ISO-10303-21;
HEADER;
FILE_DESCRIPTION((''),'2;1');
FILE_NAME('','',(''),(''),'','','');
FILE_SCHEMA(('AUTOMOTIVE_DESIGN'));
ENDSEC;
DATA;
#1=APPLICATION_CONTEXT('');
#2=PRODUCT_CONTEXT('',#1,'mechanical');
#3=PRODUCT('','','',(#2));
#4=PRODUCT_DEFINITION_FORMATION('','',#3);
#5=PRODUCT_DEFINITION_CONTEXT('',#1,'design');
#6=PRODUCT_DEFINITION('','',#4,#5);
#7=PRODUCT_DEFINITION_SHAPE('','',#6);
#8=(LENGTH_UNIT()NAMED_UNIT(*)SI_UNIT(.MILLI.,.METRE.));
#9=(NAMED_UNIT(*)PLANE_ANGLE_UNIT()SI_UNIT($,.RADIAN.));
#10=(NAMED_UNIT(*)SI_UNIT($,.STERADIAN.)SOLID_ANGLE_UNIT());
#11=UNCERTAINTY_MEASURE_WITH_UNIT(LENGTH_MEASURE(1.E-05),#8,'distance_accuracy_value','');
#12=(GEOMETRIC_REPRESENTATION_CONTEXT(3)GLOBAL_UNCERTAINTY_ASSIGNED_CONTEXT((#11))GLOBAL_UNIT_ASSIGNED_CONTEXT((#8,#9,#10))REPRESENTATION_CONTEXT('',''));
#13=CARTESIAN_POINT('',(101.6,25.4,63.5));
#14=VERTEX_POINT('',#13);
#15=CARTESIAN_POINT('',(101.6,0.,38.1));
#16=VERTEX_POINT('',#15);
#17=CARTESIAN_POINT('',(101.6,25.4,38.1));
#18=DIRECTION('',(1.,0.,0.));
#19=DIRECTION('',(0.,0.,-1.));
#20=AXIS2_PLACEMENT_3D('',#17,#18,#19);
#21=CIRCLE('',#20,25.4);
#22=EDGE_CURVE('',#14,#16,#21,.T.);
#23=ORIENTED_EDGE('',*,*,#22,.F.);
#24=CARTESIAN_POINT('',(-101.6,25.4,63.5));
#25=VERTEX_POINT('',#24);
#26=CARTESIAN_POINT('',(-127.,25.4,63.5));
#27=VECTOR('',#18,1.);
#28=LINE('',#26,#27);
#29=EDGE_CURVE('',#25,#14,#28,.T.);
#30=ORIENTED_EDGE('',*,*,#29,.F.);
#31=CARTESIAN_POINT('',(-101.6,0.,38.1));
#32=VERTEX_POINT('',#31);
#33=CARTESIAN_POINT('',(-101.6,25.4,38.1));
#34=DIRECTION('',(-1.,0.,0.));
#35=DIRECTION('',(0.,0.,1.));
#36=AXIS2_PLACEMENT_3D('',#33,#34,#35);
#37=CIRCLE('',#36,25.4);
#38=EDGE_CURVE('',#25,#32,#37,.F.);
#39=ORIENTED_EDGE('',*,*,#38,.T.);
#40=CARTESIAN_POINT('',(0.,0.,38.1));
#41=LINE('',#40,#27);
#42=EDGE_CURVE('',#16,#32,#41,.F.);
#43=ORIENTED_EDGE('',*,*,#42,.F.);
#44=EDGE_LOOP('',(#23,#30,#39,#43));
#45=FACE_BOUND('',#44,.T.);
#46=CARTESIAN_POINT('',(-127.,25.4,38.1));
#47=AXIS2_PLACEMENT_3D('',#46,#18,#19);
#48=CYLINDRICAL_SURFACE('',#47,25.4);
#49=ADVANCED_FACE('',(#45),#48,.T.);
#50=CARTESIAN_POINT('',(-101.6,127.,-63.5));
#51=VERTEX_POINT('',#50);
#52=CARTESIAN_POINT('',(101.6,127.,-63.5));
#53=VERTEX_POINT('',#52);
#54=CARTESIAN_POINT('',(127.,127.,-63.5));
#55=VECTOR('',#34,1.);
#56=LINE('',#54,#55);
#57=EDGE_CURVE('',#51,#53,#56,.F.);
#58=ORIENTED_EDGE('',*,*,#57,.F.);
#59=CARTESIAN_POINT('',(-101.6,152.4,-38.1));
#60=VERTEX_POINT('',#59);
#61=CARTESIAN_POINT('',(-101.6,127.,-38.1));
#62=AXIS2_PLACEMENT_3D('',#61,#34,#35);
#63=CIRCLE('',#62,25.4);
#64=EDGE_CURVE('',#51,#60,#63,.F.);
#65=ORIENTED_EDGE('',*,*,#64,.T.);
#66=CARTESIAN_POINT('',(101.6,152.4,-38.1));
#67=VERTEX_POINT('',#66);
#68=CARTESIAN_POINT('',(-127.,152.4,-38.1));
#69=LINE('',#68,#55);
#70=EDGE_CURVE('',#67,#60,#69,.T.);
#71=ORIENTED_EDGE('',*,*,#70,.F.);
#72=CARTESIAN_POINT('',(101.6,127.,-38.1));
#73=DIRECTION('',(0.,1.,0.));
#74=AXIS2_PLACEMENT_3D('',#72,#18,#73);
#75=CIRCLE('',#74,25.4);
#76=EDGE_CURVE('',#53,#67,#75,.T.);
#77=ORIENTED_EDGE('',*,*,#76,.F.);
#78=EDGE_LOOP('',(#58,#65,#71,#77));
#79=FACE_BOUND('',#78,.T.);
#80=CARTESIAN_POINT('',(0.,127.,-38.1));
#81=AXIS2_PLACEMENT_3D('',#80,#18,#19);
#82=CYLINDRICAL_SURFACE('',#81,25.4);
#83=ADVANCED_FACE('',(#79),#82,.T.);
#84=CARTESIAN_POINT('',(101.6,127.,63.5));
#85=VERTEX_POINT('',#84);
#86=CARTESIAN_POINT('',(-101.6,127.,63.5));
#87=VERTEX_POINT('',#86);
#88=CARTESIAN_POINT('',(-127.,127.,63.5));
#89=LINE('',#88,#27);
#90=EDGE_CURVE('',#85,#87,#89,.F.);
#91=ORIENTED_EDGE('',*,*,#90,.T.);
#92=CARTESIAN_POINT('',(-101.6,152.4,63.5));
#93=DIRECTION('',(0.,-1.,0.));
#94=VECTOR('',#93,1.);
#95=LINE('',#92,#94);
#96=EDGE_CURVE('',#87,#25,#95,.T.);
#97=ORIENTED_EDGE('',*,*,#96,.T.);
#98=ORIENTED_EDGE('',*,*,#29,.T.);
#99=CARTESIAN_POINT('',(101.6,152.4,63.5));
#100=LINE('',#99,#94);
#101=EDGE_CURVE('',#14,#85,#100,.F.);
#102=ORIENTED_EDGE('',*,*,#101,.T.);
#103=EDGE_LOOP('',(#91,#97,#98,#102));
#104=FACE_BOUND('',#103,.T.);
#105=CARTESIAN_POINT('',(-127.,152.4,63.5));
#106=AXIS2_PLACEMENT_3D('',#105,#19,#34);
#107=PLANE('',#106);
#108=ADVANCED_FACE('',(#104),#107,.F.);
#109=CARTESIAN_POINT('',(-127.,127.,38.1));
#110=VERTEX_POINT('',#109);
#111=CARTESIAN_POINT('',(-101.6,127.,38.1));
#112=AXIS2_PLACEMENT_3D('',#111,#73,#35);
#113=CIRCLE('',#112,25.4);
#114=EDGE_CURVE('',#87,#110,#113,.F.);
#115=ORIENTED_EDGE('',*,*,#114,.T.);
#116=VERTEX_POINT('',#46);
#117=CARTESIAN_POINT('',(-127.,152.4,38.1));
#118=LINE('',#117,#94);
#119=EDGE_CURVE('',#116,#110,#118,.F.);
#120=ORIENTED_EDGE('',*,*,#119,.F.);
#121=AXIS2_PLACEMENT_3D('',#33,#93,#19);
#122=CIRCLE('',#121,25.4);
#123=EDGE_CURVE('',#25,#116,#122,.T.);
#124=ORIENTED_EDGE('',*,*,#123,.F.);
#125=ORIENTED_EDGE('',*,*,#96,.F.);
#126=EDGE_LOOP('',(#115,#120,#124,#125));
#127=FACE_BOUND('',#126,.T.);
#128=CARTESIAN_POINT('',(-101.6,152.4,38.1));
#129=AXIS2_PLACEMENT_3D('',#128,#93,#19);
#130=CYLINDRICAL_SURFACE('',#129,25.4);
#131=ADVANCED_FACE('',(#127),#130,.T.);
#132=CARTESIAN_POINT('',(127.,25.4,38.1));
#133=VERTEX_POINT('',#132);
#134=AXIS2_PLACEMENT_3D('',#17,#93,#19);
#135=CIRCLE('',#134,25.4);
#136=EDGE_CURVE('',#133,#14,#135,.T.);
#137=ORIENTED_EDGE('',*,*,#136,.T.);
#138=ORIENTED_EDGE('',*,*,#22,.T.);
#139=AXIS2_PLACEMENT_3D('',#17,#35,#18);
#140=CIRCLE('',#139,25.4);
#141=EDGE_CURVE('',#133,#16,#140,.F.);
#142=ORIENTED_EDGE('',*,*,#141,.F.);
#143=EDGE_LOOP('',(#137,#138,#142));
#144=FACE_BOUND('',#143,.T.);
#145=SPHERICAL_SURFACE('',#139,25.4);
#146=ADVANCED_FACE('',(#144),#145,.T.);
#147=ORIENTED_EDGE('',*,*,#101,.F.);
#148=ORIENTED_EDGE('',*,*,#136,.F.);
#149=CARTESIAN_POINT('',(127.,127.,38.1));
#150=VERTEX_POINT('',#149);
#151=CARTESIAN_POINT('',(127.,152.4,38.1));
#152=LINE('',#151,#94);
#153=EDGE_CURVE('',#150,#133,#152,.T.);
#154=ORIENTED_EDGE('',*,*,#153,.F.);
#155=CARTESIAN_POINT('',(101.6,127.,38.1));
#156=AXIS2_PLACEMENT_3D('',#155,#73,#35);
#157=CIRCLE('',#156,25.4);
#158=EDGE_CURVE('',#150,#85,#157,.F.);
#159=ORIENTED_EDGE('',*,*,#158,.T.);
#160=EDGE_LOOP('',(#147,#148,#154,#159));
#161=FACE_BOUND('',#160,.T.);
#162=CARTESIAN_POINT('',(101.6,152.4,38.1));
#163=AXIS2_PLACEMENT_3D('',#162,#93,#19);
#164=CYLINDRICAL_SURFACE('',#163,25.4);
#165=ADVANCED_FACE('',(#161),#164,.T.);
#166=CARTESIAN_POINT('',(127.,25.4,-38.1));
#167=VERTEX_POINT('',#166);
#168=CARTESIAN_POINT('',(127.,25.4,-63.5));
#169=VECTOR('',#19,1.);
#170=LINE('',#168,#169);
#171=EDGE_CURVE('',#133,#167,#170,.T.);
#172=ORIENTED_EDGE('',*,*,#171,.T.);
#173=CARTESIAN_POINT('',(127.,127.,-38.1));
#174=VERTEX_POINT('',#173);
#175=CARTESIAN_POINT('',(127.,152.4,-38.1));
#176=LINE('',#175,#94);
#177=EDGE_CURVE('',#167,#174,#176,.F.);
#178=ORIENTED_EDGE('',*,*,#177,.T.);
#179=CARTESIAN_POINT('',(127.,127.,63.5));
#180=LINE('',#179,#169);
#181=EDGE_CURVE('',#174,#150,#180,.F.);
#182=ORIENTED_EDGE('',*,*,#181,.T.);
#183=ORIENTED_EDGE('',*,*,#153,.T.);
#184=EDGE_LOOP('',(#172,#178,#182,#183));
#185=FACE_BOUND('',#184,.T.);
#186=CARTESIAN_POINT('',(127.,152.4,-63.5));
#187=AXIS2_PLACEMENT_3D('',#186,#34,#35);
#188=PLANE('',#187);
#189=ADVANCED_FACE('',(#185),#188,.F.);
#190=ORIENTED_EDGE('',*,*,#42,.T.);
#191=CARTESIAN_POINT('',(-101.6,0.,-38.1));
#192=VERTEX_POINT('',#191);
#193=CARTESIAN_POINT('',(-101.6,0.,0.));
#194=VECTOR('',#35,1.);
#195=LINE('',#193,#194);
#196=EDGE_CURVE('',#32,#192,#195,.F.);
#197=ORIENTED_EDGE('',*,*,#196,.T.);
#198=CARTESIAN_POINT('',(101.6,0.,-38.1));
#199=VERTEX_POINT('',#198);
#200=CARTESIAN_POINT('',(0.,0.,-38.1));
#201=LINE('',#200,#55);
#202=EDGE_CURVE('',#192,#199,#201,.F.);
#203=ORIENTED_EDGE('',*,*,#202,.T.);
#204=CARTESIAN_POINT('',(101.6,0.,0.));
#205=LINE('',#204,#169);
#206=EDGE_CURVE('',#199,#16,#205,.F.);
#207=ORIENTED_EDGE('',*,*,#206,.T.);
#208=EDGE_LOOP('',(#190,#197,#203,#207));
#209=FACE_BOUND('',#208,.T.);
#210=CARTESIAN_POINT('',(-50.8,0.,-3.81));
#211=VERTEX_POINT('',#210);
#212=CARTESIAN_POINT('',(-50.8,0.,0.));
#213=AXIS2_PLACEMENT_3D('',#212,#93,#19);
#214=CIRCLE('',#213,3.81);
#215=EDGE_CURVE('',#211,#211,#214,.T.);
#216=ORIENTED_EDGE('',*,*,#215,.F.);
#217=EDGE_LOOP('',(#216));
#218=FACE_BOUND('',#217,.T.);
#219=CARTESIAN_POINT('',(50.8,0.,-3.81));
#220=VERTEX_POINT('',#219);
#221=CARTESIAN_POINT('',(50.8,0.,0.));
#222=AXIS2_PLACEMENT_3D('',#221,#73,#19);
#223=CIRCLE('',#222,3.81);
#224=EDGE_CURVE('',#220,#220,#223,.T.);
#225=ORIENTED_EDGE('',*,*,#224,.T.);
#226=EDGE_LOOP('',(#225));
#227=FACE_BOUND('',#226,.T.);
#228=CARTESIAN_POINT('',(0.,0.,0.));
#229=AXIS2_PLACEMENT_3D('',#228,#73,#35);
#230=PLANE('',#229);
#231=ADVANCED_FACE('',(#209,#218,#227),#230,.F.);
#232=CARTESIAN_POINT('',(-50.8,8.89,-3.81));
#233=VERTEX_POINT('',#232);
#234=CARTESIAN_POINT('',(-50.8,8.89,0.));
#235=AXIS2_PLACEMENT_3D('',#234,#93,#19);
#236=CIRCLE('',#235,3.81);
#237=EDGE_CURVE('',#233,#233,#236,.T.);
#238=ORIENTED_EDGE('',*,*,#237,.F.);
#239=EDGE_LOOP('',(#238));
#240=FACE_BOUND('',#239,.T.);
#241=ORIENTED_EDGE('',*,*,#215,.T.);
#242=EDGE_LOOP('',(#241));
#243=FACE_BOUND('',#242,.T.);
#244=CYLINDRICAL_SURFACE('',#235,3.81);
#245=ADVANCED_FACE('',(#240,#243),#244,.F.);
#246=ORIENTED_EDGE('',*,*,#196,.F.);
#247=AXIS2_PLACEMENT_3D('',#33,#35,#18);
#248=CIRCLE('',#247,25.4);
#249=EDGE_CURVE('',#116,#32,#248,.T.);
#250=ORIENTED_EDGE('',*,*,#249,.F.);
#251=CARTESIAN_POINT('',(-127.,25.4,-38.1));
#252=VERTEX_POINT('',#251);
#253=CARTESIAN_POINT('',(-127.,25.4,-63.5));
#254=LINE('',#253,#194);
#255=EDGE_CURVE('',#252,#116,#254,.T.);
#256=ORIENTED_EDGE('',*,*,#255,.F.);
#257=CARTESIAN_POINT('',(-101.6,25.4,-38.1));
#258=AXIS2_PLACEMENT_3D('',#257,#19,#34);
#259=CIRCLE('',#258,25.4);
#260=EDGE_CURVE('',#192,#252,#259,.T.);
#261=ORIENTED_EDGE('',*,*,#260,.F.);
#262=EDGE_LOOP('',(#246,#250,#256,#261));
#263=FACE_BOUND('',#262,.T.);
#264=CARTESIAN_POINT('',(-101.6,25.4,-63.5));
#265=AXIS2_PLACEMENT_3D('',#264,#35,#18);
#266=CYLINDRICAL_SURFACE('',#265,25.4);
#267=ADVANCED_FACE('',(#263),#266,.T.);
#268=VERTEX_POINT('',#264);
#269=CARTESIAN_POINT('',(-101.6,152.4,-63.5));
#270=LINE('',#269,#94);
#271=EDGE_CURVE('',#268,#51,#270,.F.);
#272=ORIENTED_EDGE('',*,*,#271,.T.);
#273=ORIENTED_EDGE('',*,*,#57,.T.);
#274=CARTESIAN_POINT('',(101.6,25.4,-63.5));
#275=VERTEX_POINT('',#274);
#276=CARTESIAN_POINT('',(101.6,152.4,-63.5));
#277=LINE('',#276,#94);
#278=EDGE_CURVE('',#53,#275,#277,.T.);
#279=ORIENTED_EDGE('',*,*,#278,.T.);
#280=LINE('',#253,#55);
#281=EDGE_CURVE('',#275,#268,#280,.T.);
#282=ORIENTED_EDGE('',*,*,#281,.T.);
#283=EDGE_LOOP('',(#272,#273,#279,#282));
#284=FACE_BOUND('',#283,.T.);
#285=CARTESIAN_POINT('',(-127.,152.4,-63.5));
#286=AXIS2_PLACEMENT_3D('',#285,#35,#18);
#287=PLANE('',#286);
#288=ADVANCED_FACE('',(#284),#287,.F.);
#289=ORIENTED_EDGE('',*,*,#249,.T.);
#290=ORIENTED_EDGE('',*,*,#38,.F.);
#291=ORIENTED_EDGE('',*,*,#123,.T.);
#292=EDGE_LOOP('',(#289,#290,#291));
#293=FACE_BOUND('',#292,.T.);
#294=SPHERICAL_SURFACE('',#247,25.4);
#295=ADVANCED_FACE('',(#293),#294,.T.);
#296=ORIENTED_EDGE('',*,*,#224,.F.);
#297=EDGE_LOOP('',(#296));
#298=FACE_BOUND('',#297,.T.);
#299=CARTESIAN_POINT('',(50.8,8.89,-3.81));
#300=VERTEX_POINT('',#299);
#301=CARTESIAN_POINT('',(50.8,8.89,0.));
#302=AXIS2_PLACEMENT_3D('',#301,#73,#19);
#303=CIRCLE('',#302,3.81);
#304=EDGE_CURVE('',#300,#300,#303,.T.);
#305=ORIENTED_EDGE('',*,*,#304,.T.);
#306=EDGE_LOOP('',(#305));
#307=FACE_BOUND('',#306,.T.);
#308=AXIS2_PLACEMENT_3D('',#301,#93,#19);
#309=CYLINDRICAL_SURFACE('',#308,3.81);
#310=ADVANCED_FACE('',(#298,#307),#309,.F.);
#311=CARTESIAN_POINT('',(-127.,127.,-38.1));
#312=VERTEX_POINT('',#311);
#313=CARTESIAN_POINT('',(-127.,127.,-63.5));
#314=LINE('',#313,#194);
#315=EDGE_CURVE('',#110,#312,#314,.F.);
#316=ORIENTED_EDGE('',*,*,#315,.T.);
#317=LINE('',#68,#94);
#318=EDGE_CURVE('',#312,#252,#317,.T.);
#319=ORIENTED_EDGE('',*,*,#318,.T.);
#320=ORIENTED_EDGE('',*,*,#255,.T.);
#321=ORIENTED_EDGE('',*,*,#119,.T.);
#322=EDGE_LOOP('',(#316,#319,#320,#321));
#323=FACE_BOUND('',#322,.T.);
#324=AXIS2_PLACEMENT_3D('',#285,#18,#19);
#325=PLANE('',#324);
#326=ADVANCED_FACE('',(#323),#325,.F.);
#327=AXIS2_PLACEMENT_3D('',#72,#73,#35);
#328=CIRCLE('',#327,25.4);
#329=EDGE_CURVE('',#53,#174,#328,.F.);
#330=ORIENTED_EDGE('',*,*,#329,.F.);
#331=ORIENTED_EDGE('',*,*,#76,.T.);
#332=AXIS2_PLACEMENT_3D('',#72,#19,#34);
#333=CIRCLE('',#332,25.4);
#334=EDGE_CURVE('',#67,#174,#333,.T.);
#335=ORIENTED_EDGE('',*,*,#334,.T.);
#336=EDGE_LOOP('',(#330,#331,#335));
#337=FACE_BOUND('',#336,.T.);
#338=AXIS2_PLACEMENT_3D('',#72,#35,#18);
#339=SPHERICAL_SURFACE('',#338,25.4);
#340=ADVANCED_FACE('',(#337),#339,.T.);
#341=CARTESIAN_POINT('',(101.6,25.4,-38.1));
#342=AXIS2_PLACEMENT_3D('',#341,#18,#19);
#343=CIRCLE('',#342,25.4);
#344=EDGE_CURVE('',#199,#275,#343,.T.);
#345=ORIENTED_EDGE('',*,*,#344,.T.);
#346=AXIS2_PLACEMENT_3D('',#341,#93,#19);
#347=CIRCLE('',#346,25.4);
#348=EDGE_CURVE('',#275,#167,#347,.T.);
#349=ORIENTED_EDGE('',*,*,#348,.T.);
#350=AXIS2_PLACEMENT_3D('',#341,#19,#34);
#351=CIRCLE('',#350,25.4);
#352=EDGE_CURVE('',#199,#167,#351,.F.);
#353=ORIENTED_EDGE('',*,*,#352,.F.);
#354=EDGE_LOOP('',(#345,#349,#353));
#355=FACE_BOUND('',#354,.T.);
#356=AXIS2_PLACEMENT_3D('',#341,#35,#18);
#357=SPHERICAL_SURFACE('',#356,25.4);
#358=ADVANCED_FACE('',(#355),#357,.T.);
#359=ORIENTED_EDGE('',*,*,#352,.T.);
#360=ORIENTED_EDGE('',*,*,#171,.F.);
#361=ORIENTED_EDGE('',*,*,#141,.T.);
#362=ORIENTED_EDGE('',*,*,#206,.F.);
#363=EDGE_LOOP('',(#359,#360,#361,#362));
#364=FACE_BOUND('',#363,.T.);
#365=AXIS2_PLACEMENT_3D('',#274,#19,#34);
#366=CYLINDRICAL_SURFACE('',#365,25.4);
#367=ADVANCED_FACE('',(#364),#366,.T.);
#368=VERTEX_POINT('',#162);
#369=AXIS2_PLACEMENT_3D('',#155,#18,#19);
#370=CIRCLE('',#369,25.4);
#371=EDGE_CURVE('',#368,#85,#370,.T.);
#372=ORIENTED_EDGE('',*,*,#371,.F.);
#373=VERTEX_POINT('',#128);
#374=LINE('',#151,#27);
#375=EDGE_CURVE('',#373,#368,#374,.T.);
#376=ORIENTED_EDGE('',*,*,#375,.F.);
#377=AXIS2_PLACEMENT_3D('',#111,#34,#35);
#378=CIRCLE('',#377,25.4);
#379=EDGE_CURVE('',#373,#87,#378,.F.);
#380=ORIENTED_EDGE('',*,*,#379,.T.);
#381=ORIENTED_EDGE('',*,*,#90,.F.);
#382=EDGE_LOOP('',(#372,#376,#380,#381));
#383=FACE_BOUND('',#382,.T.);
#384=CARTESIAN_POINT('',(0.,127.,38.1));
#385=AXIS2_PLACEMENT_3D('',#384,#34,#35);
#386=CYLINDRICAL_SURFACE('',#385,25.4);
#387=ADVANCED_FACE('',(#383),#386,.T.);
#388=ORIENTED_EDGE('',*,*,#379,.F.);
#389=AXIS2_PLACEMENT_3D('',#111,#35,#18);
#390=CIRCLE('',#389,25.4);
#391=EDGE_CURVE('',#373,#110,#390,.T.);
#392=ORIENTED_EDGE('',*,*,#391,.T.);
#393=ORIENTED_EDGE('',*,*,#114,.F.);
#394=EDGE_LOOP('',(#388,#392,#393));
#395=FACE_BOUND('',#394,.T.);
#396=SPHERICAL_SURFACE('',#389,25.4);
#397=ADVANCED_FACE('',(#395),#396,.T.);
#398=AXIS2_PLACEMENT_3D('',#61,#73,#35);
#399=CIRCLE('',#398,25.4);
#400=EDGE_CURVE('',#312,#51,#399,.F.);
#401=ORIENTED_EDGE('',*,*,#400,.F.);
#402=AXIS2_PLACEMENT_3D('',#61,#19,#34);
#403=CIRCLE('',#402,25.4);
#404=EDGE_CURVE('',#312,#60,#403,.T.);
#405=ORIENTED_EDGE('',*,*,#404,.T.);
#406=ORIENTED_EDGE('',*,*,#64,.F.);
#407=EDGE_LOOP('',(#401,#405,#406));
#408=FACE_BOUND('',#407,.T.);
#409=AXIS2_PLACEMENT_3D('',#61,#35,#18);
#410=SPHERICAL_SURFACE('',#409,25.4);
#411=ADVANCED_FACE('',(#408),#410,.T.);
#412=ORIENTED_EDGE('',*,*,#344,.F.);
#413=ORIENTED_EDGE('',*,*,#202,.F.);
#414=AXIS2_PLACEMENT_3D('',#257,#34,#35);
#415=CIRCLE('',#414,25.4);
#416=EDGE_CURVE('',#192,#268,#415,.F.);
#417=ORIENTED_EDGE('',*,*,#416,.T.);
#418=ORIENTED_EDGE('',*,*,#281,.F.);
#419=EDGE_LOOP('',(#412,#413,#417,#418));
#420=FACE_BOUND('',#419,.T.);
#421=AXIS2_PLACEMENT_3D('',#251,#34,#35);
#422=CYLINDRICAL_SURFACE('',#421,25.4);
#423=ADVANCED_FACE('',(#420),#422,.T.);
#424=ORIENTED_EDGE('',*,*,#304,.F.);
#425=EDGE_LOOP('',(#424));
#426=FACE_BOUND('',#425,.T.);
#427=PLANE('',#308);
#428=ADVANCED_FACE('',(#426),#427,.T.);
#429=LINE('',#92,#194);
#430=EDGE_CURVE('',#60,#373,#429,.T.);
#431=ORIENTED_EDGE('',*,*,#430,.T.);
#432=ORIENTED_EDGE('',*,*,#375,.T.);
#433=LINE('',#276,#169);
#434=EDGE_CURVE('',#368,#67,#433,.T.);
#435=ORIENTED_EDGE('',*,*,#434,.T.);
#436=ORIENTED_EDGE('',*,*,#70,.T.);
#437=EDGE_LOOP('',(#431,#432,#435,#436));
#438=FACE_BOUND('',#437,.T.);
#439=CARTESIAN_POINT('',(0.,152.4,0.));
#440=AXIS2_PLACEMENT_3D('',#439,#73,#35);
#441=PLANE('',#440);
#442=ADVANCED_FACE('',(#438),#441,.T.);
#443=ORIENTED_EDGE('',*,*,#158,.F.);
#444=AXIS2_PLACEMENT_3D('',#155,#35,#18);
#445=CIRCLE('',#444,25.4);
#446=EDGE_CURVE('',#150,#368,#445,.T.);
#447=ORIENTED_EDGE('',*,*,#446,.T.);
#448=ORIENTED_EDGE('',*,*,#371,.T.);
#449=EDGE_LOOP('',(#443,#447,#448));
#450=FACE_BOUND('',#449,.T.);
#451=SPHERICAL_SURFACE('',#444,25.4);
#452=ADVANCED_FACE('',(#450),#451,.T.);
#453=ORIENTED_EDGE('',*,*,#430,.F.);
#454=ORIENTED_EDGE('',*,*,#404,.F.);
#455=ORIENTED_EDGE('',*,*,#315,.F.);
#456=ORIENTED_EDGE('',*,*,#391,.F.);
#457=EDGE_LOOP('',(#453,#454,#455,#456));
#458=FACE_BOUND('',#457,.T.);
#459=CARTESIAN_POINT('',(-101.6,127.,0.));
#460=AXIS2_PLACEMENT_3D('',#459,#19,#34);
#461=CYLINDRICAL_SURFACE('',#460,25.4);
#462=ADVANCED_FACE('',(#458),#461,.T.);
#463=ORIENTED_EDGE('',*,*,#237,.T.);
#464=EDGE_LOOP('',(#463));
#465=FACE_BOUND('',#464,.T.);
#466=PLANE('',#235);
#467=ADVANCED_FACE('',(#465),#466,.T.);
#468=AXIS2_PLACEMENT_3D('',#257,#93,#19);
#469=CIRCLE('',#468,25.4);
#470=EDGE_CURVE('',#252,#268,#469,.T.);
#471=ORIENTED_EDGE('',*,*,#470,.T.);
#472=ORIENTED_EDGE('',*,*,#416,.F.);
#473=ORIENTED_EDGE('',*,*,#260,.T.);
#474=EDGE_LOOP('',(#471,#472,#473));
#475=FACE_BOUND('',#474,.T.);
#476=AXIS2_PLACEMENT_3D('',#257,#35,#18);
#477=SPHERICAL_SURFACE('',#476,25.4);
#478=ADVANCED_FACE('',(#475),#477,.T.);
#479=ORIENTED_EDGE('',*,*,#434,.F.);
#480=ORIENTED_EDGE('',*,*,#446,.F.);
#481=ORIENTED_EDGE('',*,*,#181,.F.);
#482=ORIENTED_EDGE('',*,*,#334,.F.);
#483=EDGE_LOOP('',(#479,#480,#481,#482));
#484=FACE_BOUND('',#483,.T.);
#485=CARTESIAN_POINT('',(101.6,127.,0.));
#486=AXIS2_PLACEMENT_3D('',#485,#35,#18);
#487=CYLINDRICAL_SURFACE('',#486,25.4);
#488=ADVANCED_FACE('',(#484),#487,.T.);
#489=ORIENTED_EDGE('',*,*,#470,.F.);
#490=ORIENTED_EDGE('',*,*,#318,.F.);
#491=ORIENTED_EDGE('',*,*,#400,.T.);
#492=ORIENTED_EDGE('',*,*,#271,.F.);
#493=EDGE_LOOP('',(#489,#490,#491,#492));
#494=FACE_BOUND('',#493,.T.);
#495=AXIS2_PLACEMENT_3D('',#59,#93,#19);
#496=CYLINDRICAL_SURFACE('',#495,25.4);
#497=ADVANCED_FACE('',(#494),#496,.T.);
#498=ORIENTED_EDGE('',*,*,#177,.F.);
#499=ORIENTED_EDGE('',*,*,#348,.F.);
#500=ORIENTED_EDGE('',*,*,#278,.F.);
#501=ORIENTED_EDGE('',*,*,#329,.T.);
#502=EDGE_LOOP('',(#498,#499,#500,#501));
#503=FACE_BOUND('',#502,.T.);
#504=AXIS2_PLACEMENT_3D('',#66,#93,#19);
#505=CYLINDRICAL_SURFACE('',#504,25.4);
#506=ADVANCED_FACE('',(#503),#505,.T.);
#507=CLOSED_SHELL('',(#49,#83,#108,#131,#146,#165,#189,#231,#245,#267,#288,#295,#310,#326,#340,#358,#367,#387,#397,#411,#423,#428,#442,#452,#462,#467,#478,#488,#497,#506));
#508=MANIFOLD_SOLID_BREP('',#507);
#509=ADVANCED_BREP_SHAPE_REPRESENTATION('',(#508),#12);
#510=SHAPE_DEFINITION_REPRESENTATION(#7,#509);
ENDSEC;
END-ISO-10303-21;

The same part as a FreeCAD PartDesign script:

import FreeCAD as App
import Part
import Sketcher
from FreeCAD import Vector
Q = App.Units.Quantity

doc = App.newDocument("Part")
body = doc.addObject("PartDesign::Body", "Body")

# Sketch on XZ plane
sketch1 = doc.addObject("Sketcher::SketchObject", "Sketch")
body.addObject(sketch1)
sketch1.AttachmentSupport = (doc.XZ_Plane, [""])
sketch1.MapMode = "FlatFace"
sketch1.addGeometry(Part.LineSegment(Vector(-127, -63.5, 0), Vector(-127, 63.5, 0)), False)
sketch1.addGeometry(Part.LineSegment(Vector(-127, 63.5, 0), Vector(127, 63.5, 0)), False)
sketch1.addGeometry(Part.LineSegment(Vector(127, 63.5, 0), Vector(127, -63.5, 0)), False)
sketch1.addGeometry(Part.LineSegment(Vector(127, -63.5, 0), Vector(-127, -63.5, 0)), False)
sketch1.addConstraint(Sketcher.Constraint("Coincident", 0, 2, 1, 1))
sketch1.addConstraint(Sketcher.Constraint("Coincident", 1, 2, 2, 1))
sketch1.addConstraint(Sketcher.Constraint("Coincident", 2, 2, 3, 1))
sketch1.addConstraint(Sketcher.Constraint("Coincident", 3, 2, 0, 1))
sketch1.addConstraint(Sketcher.Constraint("Vertical", 0))
sketch1.addConstraint(Sketcher.Constraint("Horizontal", 1))
sketch1.addConstraint(Sketcher.Constraint("Vertical", 2))
sketch1.addConstraint(Sketcher.Constraint("Horizontal", 3))
sketch1.addConstraint(Sketcher.Constraint("Symmetric", 0, 2, 2, 2, -1, 1))
sketch1.addConstraint(Sketcher.Constraint("DistanceX", 1, 1, 1, 2, Q("10 in")))
sketch1.addConstraint(Sketcher.Constraint("DistanceY", 0, 1, 0, 2, Q("5 in")))
pad1 = doc.addObject("PartDesign::Pad", "Pad")
body.addObject(pad1)
pad1.Profile = sketch1
pad1.Length = Q("6 in")
pad1.Reversed = True
doc.recompute()

fillet = doc.addObject("PartDesign::Fillet", "Fillet")
body.addObject(fillet)
fillet.Base = (pad1, ["Edge1"])
fillet.UseAllEdges = True
fillet.Radius = Q("1 in")

# Sketch on XZ plane
sketch2 = doc.addObject("Sketcher::SketchObject", "Sketch001")
body.addObject(sketch2)
sketch2.AttachmentSupport = (doc.XZ_Plane, [""])
sketch2.MapMode = "FlatFace"
sketch2.addGeometry(Part.Circle(Vector(-50.8, 0, 0), Vector(0, 0, 1), 3.81), False)
sketch2.addConstraint(Sketcher.Constraint("PointOnObject", 0, 3, -1))
sketch2.addConstraint(Sketcher.Constraint("Diameter", 0, Q("0.3 in")))
sketch2.addConstraint(Sketcher.Constraint("DistanceX", 0, 3, -1, 1, Q("2 in")))
pocket1 = doc.addObject("PartDesign::Pocket", "Pocket")
body.addObject(pocket1)
pocket1.Profile = sketch2
pocket1.Length = Q("0.35 in")
doc.recompute()

mirrored = doc.addObject("PartDesign::Mirrored", "Mirrored")
body.addObject(mirrored)
mirrored.Originals = [pocket1]
mirrored.MirrorPlane = (doc.YZ_Plane, [""])
body.Tip = mirrored

doc.recompute()
